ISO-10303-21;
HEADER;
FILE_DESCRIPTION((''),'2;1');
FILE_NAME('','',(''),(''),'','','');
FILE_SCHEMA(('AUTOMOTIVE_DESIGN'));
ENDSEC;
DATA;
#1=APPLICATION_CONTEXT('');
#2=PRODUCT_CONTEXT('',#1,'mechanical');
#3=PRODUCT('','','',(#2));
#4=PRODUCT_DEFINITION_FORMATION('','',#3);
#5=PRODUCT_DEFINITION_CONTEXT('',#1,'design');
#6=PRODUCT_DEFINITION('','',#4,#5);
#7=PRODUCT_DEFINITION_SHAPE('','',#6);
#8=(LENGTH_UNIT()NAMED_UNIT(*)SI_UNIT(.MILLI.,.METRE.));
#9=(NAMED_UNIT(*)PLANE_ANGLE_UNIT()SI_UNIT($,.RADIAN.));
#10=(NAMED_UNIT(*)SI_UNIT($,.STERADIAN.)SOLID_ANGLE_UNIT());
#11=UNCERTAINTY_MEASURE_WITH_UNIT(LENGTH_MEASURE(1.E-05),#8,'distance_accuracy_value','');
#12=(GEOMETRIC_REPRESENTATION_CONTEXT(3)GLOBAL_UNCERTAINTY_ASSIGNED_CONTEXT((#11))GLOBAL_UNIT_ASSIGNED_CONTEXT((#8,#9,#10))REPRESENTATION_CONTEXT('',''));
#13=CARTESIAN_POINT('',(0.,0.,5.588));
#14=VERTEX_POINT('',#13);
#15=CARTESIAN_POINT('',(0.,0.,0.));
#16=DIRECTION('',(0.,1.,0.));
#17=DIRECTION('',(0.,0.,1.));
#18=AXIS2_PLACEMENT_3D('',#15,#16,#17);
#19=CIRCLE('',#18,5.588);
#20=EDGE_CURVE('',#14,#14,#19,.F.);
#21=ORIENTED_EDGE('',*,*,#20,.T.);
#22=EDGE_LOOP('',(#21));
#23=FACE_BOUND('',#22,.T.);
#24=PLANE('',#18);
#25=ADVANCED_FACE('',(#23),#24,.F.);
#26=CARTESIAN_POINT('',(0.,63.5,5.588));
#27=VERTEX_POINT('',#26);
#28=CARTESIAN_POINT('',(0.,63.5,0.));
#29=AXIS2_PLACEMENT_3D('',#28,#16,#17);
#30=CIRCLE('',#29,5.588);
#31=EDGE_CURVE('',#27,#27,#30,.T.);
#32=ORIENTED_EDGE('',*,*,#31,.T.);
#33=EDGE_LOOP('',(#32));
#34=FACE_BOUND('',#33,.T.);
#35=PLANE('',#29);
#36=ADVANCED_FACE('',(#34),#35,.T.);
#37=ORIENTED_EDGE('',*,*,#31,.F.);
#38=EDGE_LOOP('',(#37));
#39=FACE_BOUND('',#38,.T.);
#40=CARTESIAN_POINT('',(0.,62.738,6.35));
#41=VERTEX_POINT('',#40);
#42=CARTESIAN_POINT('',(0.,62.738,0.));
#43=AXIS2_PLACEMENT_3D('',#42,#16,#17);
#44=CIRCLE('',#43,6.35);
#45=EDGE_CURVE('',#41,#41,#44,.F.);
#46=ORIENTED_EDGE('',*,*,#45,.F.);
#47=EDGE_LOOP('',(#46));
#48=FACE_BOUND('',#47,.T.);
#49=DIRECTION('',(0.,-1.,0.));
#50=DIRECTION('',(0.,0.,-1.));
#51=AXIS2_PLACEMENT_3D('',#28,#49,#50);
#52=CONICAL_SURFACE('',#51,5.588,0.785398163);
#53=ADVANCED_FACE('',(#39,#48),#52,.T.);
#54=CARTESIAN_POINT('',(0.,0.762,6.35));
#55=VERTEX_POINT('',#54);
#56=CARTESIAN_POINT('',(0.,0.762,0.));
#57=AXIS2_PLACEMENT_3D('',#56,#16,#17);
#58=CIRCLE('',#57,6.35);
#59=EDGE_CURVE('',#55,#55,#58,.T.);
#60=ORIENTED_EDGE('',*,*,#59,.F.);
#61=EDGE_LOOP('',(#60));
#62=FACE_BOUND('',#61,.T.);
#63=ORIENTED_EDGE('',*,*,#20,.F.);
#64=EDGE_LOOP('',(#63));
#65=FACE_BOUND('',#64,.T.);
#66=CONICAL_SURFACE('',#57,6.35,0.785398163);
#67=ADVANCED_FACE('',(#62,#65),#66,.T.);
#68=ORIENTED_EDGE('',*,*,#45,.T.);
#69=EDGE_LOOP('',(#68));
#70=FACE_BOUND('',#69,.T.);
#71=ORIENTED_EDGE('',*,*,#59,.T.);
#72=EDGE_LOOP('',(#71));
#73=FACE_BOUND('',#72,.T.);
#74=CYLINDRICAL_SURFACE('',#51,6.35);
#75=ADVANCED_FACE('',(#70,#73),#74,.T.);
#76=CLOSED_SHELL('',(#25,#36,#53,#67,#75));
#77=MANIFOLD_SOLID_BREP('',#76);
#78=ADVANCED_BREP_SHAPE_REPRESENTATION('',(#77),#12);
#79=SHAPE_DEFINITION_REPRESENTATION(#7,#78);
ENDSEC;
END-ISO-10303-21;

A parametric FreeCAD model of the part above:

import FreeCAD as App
import Part
import Sketcher
from FreeCAD import Vector
Q = App.Units.Quantity


def edges_at(feature, points):
    """Names of the edges that pass closest to the given points."""
    edges = feature.Shape.Edges
    near = lambda p: min(range(len(edges)), key=lambda i: edges[i].distToShape(Part.Vertex(*p))[0])
    return sorted({f"Edge{near(p) + 1}" for p in points})

doc = App.newDocument("Part")
params = doc.addObject("Spreadsheet::Sheet", "Params")
for row, (alias, value) in enumerate([
    ("sketch1_diameter", "0.5 in"),
    ("pad1_length", "2.5 in"),
    ("chamfer_size", "0.03 in"),
], start=1):
    params.set(f"A{row}", alias)
    params.set(f"B{row}", "=" + value)
    params.setAlias(f"B{row}", alias)

body = doc.addObject("PartDesign::Body", "Body")

sketch1 = doc.addObject("Sketcher::SketchObject", "Sketch")
body.addObject(sketch1)
sketch1.AttachmentSupport = (doc.XZ_Plane, [""])
sketch1.MapMode = "FlatFace"
sketch1.addGeometry(Part.Circle(Vector(0, 0, 0), Vector(0, 0, 1), 6.35), False)
sketch1.addConstraint(Sketcher.Constraint("Coincident", 0, 3, -1, 1))
sketch1.addConstraint(Sketcher.Constraint("Diameter", 0, Q("0.5 in")))
sketch1.setExpression("Constraints[1]", "Params.sketch1_diameter")
pad1 = doc.addObject("PartDesign::Pad", "Pad")
body.addObject(pad1)
pad1.Profile = sketch1
pad1.setExpression("Length", "Params.pad1_length")
pad1.Reversed = True
doc.recompute()

chamfer = doc.addObject("PartDesign::Chamfer", "Chamfer")
body.addObject(chamfer)
chamfer.Base = (pad1, edges_at(pad1, [(-6.35, 0, 0), (-6.35, 63.5, 0)]))
chamfer.setExpression("Size", "Params.chamfer_size")

doc.recompute()
